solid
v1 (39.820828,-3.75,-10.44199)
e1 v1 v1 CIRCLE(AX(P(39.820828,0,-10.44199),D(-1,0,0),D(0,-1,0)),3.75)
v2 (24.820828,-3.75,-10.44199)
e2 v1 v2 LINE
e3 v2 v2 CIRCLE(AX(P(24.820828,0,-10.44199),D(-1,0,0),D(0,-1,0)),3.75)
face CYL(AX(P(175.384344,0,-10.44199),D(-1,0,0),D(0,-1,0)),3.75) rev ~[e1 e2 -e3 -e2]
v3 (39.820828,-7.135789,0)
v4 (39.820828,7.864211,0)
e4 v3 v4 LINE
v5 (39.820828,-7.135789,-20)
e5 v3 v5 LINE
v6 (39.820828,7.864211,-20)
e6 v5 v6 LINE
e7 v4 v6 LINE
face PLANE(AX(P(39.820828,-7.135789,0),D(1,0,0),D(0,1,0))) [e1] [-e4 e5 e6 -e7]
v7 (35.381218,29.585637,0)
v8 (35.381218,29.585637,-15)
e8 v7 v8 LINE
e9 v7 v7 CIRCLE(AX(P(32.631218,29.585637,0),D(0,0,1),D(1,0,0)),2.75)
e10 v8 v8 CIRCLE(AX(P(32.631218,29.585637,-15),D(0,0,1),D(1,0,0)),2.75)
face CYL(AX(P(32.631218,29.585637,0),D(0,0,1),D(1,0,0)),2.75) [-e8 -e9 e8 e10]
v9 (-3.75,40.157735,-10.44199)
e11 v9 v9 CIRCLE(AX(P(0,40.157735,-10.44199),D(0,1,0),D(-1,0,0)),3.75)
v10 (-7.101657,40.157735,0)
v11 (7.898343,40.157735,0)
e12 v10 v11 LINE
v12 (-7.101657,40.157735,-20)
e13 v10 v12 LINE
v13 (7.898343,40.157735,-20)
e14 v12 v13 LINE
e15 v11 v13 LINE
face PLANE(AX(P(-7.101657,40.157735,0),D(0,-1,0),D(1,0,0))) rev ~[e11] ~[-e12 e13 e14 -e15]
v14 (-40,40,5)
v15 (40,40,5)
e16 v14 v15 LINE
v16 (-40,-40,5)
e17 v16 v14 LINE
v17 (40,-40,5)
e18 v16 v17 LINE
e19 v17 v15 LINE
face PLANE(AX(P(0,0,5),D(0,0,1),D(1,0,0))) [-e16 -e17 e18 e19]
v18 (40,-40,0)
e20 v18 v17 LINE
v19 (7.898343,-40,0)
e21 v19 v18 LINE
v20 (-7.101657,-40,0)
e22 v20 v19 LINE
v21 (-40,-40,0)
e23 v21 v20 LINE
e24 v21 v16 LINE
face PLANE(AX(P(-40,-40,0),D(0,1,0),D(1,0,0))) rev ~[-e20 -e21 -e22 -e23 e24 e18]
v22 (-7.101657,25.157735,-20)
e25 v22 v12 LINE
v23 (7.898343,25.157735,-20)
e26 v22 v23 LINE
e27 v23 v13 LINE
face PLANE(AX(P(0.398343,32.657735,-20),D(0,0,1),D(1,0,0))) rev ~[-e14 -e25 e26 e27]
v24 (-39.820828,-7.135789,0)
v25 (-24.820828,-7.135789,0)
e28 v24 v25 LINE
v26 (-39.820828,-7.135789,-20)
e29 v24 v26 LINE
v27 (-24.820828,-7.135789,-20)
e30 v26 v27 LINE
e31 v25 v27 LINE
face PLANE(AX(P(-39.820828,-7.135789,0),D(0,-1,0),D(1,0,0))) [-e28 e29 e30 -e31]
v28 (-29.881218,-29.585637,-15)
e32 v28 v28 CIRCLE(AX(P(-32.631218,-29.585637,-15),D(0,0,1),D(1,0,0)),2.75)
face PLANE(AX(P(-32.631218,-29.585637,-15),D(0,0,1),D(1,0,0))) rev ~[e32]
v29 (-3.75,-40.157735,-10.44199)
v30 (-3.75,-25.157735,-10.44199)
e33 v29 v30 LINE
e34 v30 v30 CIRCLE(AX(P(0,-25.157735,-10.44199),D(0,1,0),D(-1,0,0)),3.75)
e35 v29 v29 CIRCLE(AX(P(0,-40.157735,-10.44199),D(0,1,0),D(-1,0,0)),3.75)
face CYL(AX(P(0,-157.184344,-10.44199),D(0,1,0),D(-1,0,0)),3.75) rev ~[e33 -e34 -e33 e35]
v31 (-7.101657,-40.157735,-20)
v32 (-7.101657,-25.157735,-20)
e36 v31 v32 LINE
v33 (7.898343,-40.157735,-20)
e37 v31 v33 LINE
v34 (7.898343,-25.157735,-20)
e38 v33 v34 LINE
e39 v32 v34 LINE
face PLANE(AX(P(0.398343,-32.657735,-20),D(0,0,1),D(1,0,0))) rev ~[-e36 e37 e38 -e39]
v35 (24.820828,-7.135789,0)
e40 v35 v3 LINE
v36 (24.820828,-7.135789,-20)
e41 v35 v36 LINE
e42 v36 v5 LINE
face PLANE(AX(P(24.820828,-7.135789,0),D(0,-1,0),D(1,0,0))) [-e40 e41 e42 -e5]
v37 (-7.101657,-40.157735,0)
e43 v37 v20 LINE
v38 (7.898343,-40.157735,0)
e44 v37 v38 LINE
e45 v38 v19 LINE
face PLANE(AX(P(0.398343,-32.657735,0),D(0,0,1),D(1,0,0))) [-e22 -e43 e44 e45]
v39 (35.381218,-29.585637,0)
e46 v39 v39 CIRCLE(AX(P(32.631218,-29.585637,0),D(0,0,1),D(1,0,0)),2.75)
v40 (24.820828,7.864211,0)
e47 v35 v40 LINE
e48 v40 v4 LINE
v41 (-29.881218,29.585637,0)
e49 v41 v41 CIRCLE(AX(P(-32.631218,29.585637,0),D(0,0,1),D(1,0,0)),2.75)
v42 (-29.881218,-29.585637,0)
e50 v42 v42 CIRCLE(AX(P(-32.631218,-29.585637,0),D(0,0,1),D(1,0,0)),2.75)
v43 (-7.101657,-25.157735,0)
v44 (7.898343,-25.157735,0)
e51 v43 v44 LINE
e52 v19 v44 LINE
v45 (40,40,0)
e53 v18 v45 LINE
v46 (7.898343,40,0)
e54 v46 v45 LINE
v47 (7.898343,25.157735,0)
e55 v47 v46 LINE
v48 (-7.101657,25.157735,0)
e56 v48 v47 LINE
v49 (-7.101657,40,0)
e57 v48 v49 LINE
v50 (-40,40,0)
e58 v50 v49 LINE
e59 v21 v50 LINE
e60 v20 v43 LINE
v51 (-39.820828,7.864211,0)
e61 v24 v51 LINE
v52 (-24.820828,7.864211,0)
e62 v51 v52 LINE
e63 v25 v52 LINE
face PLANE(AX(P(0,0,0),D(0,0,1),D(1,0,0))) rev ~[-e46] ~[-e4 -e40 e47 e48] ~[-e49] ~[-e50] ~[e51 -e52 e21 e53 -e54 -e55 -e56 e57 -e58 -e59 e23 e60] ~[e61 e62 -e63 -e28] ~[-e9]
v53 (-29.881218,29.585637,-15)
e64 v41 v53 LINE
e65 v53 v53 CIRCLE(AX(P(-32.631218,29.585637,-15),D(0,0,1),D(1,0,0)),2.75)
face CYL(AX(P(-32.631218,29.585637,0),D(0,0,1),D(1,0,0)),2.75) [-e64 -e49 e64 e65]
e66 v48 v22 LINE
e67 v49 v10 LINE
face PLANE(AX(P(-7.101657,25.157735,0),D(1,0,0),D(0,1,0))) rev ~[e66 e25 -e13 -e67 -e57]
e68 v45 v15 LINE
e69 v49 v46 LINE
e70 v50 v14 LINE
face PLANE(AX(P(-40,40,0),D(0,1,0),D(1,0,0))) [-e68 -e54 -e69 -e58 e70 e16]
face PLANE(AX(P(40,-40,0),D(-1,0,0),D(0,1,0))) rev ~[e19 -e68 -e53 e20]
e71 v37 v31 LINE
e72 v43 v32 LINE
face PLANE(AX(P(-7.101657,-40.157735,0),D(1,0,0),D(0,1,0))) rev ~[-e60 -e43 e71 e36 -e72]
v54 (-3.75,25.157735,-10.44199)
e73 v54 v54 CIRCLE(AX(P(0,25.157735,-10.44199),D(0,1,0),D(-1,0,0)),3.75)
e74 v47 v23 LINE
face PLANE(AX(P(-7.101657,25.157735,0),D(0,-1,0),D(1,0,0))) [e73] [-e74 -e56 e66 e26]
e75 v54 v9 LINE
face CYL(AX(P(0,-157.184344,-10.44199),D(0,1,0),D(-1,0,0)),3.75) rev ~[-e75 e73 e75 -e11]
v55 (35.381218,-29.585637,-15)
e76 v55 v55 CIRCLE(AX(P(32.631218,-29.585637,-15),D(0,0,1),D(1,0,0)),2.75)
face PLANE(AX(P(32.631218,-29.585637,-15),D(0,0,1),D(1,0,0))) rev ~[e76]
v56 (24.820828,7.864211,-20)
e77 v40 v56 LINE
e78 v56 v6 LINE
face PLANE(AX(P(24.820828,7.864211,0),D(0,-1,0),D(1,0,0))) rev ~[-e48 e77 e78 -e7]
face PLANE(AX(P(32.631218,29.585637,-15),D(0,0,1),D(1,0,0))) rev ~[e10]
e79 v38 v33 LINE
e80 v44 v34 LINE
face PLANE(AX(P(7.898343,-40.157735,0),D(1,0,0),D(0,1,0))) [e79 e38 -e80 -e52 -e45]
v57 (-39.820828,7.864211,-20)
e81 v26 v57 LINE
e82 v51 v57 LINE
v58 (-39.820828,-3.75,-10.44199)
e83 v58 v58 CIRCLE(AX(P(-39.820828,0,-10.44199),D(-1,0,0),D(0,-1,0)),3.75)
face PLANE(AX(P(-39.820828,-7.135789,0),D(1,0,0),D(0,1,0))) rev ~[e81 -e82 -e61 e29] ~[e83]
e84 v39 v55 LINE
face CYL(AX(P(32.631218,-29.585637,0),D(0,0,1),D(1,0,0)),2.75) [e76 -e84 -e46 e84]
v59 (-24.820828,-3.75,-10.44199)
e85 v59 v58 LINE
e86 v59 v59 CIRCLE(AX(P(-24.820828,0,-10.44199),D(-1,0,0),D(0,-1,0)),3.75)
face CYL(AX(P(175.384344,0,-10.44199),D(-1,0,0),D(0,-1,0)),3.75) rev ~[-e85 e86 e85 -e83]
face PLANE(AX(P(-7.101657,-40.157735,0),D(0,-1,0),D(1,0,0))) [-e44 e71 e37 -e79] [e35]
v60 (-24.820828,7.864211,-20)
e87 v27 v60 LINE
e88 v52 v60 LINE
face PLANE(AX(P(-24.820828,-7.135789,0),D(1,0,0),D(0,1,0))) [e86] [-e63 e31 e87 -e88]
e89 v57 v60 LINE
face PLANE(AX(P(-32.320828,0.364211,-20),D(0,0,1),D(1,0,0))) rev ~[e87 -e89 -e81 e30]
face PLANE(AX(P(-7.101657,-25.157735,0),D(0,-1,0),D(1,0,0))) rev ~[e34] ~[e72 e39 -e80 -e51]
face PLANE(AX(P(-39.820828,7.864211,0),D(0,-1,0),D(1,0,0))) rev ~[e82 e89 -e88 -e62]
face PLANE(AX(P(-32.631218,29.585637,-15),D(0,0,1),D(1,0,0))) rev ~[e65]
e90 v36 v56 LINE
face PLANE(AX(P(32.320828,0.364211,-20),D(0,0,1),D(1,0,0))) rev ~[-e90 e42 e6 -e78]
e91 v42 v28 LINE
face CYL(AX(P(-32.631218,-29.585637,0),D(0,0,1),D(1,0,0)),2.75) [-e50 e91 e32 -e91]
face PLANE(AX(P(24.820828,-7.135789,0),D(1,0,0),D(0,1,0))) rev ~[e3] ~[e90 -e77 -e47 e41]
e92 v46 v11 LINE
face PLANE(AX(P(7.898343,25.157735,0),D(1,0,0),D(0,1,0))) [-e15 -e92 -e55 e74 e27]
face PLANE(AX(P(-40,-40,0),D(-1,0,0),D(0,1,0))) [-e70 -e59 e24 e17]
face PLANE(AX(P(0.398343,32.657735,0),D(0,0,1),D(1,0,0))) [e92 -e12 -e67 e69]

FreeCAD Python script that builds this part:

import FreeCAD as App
import Part
import Sketcher
from FreeCAD import Vector


def add_polygon(sketch, points):
    """Adds a closed chain of lines whose ends are joined by coincident constraints."""
    first, n = sketch.GeometryCount, len(points)
    for a, b in zip(points, points[1:] + points[:1]):
        sketch.addGeometry(Part.LineSegment(App.Vector(*a, 0), App.Vector(*b, 0)), False)
    for i in range(n):
        sketch.addConstraint(Sketcher.Constraint("Coincident", first + i, 2, first + (i + 1) % n, 1))

doc = App.newDocument("Part")
body = doc.addObject("PartDesign::Body", "Body")

sketch1 = body.newObject("Sketcher::SketchObject", "Sketch")
sketch1.AttachmentSupport = (doc.getObject("XY_Plane"), [""])
sketch1.MapMode = "FlatFace"
add_polygon(sketch1, [(-40, 40), (-40, -40), (40, -40), (40, 40)])
sketch1.addConstraint(Sketcher.Constraint("Vertical", 0))
sketch1.addConstraint(Sketcher.Constraint("Horizontal", 1))
sketch1.addConstraint(Sketcher.Constraint("Vertical", 2))
sketch1.addConstraint(Sketcher.Constraint("Horizontal", 3))
sketch1.addConstraint(Sketcher.Constraint("Symmetric", 0, 2, 2, 2, -1, 1))
sketch1.addConstraint(Sketcher.Constraint("Equal", 3, 0))
sketch1.addConstraint(Sketcher.Constraint("DistanceX", 1, 1, 1, 2, 80.0))
pad1 = body.newObject("PartDesign::Pad", "Pad")
pad1.Profile = sketch1
pad1.Length = 5

sketch2 = body.newObject("Sketcher::SketchObject", "Sketch001")
sketch2.AttachmentSupport = (doc.getObject("XY_Plane"), [""])
sketch2.MapMode = "FlatFace"
add_polygon(sketch2, [(-40, 8), (-40, -7), (-25, -7), (-25, 8)])
add_polygon(sketch2, [(25, 8), (25, -7), (40, -7), (40, 8)])
add_polygon(sketch2, [(-7, -25), (-7, -40), (8, -40), (8, -25)])
add_polygon(sketch2, [(-7, 40), (-7, 25), (8, 25), (8, 40)])
sketch2.addConstraint(Sketcher.Constraint("Vertical", 0))
sketch2.addConstraint(Sketcher.Constraint("Horizontal", 1))
sketch2.addConstraint(Sketcher.Constraint("Vertical", 2))
sketch2.addConstraint(Sketcher.Constraint("Horizontal", 3))
sketch2.addConstraint(Sketcher.Constraint("Vertical", 4))
sketch2.addConstraint(Sketcher.Constraint("Horizontal", 5))
sketch2.addConstraint(Sketcher.Constraint("Vertical", 6))
sketch2.addConstraint(Sketcher.Constraint("Horizontal", 7))
sketch2.addConstraint(Sketcher.Constraint("Vertical", 8))
sketch2.addConstraint(Sketcher.Constraint("Horizontal", 9))
sketch2.addConstraint(Sketcher.Constraint("Vertical", 10))
sketch2.addConstraint(Sketcher.Constraint("Horizontal", 11))
sketch2.addConstraint(Sketcher.Constraint("Vertical", 12))
sketch2.addConstraint(Sketcher.Constraint("Horizontal", 13))
sketch2.addConstraint(Sketcher.Constraint("Vertical", 14))
sketch2.addConstraint(Sketcher.Constraint("Horizontal", 15))
sketch2.addConstraint(Sketcher.Constraint("Symmetric", 1, 2, 4, 2, -2))
sketch2.addConstraint(Sketcher.Constraint("Symmetric", 3, 2, 6, 2, -2))
sketch2.addConstraint(Sketcher.Constraint("Symmetric", 11, 2, 12, 2, -1))
sketch2.addConstraint(Sketcher.Constraint("Symmetric", 9, 2, 14, 2, -1))
sketch2.addConstraint(Sketcher.Constraint("Equal", 7, 9))
sketch2.addConstraint(Sketcher.Constraint("Equal", 15, 0))
sketch2.addConstraint(Sketcher.Constraint("Equal", 6, 8))
sketch2.addConstraint(Sketcher.Constraint("DistanceX", 1, 1, 1, 2, 15.0))
sketch2.addConstraint(Sketcher.Constraint("DistanceY", 0, 2, -1, 1, 7.135789))
sketch2.addConstraint(Sketcher.Constraint("DistanceX", 1, 2, 8, 2, 17.719171))
sketch2.addConstraint(Sketcher.Constraint("DistanceX", 0, 2, -1, 1, 39.820828))
sketch2.addConstraint(Sketcher.Constraint("DistanceY", 8, 2, -1, 1, 40.157735))
pad2 = body.newObject("PartDesign::Pad", "Pad001")
pad2.Profile = sketch2
pad2.Length = 20
pad2.Reversed = True

sketch3 = body.newObject("Sketcher::SketchObject", "Sketch002")
sketch3.AttachmentSupport = (doc.getObject("XZ_Plane"), [""])
sketch3.MapMode = "FlatFace"
sketch3.AttachmentOffset = App.Placement(Vector(0, 0, 41.1), App.Rotation())
sketch3.addGeometry(Part.Circle(Vector(0, -10.4, 0), Vector(0, 0, 1), 3.8), False)
sketch3.addConstraint(Sketcher.Constraint("PointOnObject", 0, 3, -2))
sketch3.addConstraint(Sketcher.Constraint("Diameter", 0, 7.5))
sketch3.addConstraint(Sketcher.Constraint("DistanceY", 0, 3, -1, 1, 10.44199))
doc.recompute()
hole = body.newObject("PartDesign::Hole", "Hole")
hole.Profile = sketch3
hole.ThreadType = "None"
hole.Diameter = 7.5
hole.DepthType = "ThroughAll"

sketch4 = body.newObject("Sketcher::SketchObject", "Sketch003")
sketch4.AttachmentSupport = (doc.getObject("YZ_Plane"), [""])
sketch4.MapMode = "FlatFace"
sketch4.AttachmentOffset = App.Placement(Vector(0, 0, 59.3), App.Rotation())
sketch4.addGeometry(Part.Circle(Vector(0, -10.4, 0), Vector(0, 0, 1), 3.8), False)
sketch4.addConstraint(Sketcher.Constraint("PointOnObject", 0, 3, -2))
sketch4.addConstraint(Sketcher.Constraint("Diameter", 0, 7.5))
sketch4.addConstraint(Sketcher.Constraint("DistanceY", 0, 3, -1, 1, 10.44199))
doc.recompute()
hole2 = body.newObject("PartDesign::Hole", "Hole001")
hole2.Profile = sketch4
hole2.ThreadType = "None"
hole2.Diameter = 7.5
hole2.DepthType = "ThroughAll"

sketch5 = body.newObject("Sketcher::SketchObject", "Sketch004")
sketch5.AttachmentSupport = (doc.getObject("XY_Plane"), [""])
sketch5.MapMode = "FlatFace"
sketch5.addGeometry(Part.Circle(Vector(-32.6, 29.6, 0), Vector(0, 0, 1), 2.8), False)
sketch5.addGeometry(Part.Circle(Vector(32.6, 29.6, 0), Vector(0, 0, 1), 2.8), False)
sketch5.addGeometry(Part.Circle(Vector(32.6, -29.6, 0), Vector(0, 0, 1), 2.8), False)
sketch5.addGeometry(Part.Circle(Vector(-32.6, -29.6, 0), Vector(0, 0, 1), 2.8), False)
sketch5.addConstraint(Sketcher.Constraint("Equal", 0, 1))
sketch5.addConstraint(Sketcher.Constraint("Equal", 1, 2))
sketch5.addConstraint(Sketcher.Constraint("Equal", 2, 3))
sketch5.addConstraint(Sketcher.Constraint("Symmetric", 0, 3, 2, 3, -1, 1))
sketch5.addConstraint(Sketcher.Constraint("Symmetric", 1, 3, 3, 3, -1, 1))
sketch5.addConstraint(Sketcher.Constraint("Symmetric", 0, 3, 1, 3, -2))
sketch5.addConstraint(Sketcher.Constraint("Diameter", 0, 5.5))
sketch5.addConstraint(Sketcher.Constraint("DistanceX", 0, 3, -1, 1, 32.631218))
sketch5.addConstraint(Sketcher.Constraint("DistanceY", -1, 1, 0, 3, 29.585637))
pad3 = body.newObject("PartDesign::Pad", "Pad002")
pad3.Profile = sketch5
pad3.Length = 15
pad3.Reversed = True

doc.recompute()
